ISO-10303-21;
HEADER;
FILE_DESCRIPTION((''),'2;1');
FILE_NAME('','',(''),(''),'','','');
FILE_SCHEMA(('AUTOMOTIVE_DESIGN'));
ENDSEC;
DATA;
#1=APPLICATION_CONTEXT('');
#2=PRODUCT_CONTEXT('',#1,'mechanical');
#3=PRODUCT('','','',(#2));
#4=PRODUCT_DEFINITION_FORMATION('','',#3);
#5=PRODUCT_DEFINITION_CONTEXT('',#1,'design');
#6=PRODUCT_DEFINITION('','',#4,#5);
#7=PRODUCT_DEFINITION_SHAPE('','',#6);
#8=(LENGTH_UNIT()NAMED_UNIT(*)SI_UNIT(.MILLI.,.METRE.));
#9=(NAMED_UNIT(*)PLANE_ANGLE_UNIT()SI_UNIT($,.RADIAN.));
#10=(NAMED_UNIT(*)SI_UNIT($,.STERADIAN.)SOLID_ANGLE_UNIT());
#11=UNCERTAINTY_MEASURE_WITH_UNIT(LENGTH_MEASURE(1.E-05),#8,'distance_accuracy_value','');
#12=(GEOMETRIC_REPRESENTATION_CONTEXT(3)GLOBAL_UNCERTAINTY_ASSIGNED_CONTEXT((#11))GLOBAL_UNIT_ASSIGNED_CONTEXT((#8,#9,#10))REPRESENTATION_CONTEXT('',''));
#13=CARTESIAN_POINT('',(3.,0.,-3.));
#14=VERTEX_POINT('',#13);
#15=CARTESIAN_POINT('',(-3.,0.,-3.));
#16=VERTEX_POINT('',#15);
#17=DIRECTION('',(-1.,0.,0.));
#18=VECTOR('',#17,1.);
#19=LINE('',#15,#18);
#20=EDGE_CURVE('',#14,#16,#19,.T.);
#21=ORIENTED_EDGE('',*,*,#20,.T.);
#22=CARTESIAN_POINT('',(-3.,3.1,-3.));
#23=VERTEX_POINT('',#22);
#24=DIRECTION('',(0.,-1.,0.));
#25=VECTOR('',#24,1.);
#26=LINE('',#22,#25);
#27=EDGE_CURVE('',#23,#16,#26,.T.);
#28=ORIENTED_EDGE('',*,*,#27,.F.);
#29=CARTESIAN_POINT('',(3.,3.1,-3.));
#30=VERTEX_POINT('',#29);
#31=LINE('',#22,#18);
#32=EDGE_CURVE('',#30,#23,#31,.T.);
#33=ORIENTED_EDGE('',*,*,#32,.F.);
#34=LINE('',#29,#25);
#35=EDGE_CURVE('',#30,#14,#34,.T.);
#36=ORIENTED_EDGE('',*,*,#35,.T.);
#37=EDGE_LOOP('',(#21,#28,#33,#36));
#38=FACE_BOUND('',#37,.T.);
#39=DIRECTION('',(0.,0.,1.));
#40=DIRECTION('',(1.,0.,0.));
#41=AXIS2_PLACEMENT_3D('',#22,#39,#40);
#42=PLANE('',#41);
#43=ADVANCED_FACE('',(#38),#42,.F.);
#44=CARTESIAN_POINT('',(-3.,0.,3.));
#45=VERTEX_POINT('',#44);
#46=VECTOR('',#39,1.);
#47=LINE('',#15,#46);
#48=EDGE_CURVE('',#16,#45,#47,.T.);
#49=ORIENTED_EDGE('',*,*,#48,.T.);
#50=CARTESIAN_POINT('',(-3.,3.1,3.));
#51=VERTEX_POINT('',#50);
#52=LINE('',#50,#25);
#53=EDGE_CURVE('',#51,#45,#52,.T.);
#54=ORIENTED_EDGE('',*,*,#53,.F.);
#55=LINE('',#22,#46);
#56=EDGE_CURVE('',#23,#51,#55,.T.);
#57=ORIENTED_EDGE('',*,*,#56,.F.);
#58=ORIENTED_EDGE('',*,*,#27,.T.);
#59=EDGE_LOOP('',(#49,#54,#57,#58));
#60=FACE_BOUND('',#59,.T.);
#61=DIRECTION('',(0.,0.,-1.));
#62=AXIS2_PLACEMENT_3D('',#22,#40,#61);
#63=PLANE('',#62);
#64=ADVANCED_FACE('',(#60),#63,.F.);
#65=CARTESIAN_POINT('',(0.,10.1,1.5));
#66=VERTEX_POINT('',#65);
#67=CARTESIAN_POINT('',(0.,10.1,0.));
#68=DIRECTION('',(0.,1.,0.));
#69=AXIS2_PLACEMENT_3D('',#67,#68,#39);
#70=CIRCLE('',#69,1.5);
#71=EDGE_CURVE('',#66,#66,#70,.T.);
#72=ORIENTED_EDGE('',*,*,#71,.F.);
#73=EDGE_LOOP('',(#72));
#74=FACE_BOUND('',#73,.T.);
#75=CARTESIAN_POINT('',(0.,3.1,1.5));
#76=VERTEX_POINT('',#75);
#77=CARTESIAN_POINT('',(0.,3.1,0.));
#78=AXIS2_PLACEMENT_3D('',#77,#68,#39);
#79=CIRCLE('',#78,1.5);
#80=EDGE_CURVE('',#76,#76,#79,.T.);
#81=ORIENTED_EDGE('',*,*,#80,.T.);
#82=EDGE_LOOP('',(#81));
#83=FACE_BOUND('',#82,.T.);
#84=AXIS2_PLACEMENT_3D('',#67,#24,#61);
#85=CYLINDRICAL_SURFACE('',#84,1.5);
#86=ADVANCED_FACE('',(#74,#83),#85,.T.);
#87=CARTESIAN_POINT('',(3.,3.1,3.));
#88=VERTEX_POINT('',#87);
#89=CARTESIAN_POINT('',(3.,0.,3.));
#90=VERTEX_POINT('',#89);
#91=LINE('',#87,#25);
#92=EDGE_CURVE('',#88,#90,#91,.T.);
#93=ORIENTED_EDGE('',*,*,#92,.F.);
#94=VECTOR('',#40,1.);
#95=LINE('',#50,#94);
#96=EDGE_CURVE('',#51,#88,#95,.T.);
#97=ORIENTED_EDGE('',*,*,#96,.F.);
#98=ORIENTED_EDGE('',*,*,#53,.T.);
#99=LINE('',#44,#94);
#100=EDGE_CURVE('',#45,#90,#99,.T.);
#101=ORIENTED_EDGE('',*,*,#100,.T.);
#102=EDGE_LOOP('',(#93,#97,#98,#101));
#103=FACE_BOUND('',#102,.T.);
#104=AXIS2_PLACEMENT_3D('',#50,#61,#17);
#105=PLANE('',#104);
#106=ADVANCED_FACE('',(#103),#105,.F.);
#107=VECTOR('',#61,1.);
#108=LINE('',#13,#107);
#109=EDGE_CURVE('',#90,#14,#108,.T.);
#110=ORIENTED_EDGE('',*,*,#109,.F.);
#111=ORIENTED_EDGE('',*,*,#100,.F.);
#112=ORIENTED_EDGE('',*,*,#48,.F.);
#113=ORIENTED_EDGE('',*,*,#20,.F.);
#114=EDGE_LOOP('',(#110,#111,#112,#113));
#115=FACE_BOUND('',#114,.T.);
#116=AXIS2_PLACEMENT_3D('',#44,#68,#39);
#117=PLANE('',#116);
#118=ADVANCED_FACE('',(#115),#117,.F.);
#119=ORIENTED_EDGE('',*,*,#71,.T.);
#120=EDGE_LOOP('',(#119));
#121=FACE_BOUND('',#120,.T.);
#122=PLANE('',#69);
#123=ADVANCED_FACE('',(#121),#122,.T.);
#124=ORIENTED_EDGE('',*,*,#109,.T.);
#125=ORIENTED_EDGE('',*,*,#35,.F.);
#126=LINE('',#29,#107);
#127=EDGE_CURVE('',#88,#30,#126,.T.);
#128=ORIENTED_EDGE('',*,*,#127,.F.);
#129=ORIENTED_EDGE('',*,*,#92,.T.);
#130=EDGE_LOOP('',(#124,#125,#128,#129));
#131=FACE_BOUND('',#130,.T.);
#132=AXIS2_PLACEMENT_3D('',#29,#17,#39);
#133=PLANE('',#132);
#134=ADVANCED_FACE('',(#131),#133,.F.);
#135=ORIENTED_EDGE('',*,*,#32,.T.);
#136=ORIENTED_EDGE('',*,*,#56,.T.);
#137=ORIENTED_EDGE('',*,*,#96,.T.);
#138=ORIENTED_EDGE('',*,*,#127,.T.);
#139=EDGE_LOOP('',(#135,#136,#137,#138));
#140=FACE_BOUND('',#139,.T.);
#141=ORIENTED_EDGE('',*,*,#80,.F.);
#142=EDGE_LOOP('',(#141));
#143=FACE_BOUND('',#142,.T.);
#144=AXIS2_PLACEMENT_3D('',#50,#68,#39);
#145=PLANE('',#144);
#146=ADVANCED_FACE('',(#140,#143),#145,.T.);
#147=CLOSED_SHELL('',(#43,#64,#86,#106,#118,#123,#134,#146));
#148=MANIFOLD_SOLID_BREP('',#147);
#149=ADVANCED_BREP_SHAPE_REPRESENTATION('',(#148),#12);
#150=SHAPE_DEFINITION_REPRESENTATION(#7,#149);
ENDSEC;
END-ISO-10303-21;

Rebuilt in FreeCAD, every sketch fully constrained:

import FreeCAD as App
import Part
import Sketcher
Q = App.Units.Quantity

doc = App.newDocument("Part")
params = doc.addObject("Spreadsheet::Sheet", "Params")
for row, (alias, value) in enumerate([
    ("sketch1_width", "6 mm"),
    ("pad1_length", "3.1 mm"),
    ("sketch2_diameter", "3 mm"),
    ("pad2_length", "7 mm"),
], start=1):
    params.set(f"A{row}", alias)
    params.set(f"B{row}", "=" + value)
    params.setAlias(f"B{row}", alias)

body = doc.addObject("PartDesign::Body", "Body")

sketch1 = body.newObject("Sketcher::SketchObject", "Sketch")
sketch1.AttachmentSupport = (doc.getObject("XZ_Plane"), [""])
sketch1.MapMode = "FlatFace"
sketch1.addGeometry([
    Part.LineSegment(App.Vector(-3, -3, 0), App.Vector(-3, 3, 0)),
    Part.LineSegment(App.Vector(-3, 3, 0), App.Vector(3, 3, 0)),
    Part.LineSegment(App.Vector(3, 3, 0), App.Vector(3, -3, 0)),
    Part.LineSegment(App.Vector(3, -3, 0), App.Vector(-3, -3, 0)),
], False)
sketch1.addConstraint([
    Sketcher.Constraint("Coincident", 0, 2, 1, 1),
    Sketcher.Constraint("Coincident", 1, 2, 2, 1),
    Sketcher.Constraint("Coincident", 2, 2, 3, 1),
    Sketcher.Constraint("Coincident", 3, 2, 0, 1),
    Sketcher.Constraint("Vertical", 0),
    Sketcher.Constraint("Horizontal", 1),
    Sketcher.Constraint("Vertical", 2),
    Sketcher.Constraint("Horizontal", 3),
    Sketcher.Constraint("Symmetric", 0, 2, 2, 2, -1, 1),
    Sketcher.Constraint("Equal", 3, 0),
    Sketcher.Constraint("DistanceX", 1, 1, 1, 2, Q("6 mm")),
])
sketch1.setExpression("Constraints[10]", "Params.sketch1_width")
pad1 = body.newObject("PartDesign::Pad", "Pad")
pad1.Profile = sketch1
pad1.setExpression("Length", "Params.pad1_length")
pad1.Reversed = True

sketch2 = body.newObject("Sketcher::SketchObject", "Sketch001")
sketch2.AttachmentSupport = (doc.getObject("XZ_Plane"), [""])
sketch2.MapMode = "FlatFace"
sketch2.AttachmentOffset = App.Placement(App.Vector(0, 0, -3.1), App.Rotation())
sketch2.addGeometry(Part.Circle(App.Vector(0, 0, 0), App.Vector(0, 0, 1), 1.5), False)
sketch2.addConstraint([
    Sketcher.Constraint("Coincident", 0, 3, -1, 1),
    Sketcher.Constraint("Diameter", 0, Q("3 mm")),
])
sketch2.setExpression("Constraints[1]", "Params.sketch2_diameter")
pad2 = body.newObject("PartDesign::Pad", "Pad001")
pad2.Profile = sketch2
pad2.setExpression("Length", "Params.pad2_length")
pad2.Reversed = True

doc.recompute()
